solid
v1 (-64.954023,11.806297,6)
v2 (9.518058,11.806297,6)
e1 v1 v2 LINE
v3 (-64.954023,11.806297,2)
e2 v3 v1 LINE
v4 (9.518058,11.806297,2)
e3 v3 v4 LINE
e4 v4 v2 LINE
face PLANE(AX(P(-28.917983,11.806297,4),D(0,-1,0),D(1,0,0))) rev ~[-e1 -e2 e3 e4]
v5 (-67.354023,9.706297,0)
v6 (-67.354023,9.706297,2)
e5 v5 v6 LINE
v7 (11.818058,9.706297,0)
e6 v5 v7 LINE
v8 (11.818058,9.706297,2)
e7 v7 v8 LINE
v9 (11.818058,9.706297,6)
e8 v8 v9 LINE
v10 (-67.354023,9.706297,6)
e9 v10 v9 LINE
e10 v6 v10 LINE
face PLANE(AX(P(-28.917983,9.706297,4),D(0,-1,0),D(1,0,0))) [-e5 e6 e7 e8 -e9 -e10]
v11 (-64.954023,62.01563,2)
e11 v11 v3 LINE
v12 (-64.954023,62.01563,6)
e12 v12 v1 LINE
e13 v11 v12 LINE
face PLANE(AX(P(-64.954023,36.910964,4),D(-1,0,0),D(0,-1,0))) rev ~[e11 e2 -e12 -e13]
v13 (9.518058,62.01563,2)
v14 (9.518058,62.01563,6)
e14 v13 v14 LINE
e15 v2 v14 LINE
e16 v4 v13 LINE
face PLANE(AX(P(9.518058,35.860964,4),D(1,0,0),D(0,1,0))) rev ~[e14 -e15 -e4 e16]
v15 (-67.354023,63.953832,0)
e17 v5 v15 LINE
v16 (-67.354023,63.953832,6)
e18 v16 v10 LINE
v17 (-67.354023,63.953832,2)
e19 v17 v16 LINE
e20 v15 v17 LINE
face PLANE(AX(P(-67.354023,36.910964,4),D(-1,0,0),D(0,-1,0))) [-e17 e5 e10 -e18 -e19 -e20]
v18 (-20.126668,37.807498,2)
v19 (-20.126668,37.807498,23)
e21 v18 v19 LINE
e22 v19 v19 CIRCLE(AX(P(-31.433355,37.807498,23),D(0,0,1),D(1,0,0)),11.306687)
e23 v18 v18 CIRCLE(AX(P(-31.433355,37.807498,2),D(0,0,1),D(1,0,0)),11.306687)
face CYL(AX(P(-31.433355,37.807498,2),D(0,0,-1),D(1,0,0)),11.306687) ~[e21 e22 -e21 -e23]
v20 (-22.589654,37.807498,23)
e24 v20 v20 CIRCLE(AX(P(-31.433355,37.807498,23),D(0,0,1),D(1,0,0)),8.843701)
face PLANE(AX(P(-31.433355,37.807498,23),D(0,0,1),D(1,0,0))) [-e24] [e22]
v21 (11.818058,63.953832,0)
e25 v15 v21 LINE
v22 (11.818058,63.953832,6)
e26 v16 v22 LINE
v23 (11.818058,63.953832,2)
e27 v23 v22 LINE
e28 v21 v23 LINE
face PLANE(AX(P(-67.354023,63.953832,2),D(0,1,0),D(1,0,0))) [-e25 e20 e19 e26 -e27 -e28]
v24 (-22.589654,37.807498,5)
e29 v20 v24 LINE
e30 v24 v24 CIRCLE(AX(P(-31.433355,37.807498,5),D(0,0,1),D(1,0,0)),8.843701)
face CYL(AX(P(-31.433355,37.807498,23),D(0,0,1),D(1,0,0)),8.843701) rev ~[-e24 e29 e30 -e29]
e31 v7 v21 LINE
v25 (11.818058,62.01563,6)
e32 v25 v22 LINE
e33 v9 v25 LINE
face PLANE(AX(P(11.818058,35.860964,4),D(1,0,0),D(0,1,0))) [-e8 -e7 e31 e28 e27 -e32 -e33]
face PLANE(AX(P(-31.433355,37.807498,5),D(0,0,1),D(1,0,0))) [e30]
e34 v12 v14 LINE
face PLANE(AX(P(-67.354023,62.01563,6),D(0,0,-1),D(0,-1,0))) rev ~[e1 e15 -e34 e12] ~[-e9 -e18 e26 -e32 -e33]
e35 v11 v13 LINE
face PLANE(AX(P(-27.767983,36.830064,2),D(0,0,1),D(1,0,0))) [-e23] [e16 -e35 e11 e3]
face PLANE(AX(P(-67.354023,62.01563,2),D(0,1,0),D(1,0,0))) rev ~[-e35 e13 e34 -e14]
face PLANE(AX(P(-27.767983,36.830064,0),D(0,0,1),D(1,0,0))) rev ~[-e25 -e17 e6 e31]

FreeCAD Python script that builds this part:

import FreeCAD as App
import Part
import Sketcher
Q = App.Units.Quantity


def add_polygon(sketch, points):
    """Adds a closed chain of lines whose ends are joined by coincident constraints."""
    first, n = sketch.GeometryCount, len(points)
    for a, b in zip(points, points[1:] + points[:1]):
        sketch.addGeometry(Part.LineSegment(App.Vector(*a, 0), App.Vector(*b, 0)), False)
    for i in range(n):
        sketch.addConstraint(Sketcher.Constraint("Coincident", first + i, 2, first + (i + 1) % n, 1))

doc = App.newDocument("Part")
body = doc.addObject("PartDesign::Body", "Body")

sketch1 = doc.addObject("Sketcher::SketchObject", "Sketch")
body.addObject(sketch1)
sketch1.AttachmentSupport = (doc.XY_Plane, [""])
sketch1.MapMode = "FlatFace"
add_polygon(sketch1, [(-67, 64), (-67, 10), (12, 10), (12, 64)])
sketch1.addConstraint([
    Sketcher.Constraint("Vertical", 0),
    Sketcher.Constraint("Horizontal", 1),
    Sketcher.Constraint("Vertical", 2),
    Sketcher.Constraint("Horizontal", 3),
    Sketcher.Constraint("DistanceX", 1, 1, 1, 2, Q("79.172081 mm")),
    Sketcher.Constraint("DistanceY", 0, 2, 0, 1, Q("54.247535 mm")),
    Sketcher.Constraint("DistanceY", -1, 1, 2, 2, Q("63.953832 mm")),
    Sketcher.Constraint("DistanceX", 0, 2, -1, 1, Q("67.354023 mm")),
])
pad1 = doc.addObject("PartDesign::Pad", "Pad")
body.addObject(pad1)
pad1.Profile = sketch1
pad1.Length = 2

sketch2 = doc.addObject("Sketcher::SketchObject", "Sketch001")
body.addObject(sketch2)
sketch2.AttachmentSupport = (doc.XY_Plane, [""])
sketch2.MapMode = "FlatFace"
sketch2.AttachmentOffset = App.Placement(App.Vector(0, 0, 2), App.Rotation())
add_polygon(sketch2, [(-67.4, 64), (-67.4, 62), (11.8, 62), (11.8, 64)])
sketch2.addConstraint([
    Sketcher.Constraint("Vertical", 0),
    Sketcher.Constraint("Horizontal", 1),
    Sketcher.Constraint("Vertical", 2),
    Sketcher.Constraint("Horizontal", 3),
    Sketcher.Constraint("DistanceY", 0, 2, 0, 1, Q("1.938201 mm")),
    Sketcher.Constraint("DistanceX", 1, 1, 1, 2, Q("79.172081 mm")),
    Sketcher.Constraint("DistanceY", -1, 1, 0, 2, Q("62.01563 mm")),
    Sketcher.Constraint("DistanceX", 0, 2, -1, 1, Q("67.354023 mm")),
])
pad2 = doc.addObject("PartDesign::Pad", "Pad001")
body.addObject(pad2)
pad2.Profile = sketch2
pad2.Length = 4

sketch3 = doc.addObject("Sketcher::SketchObject", "Sketch002")
body.addObject(sketch3)
sketch3.AttachmentSupport = (doc.YZ_Plane, [""])
sketch3.MapMode = "FlatFace"
sketch3.AttachmentOffset = App.Placement(App.Vector(0, 0, 11.818058), App.Rotation())
add_polygon(sketch3, [(9.7, 6), (9.7, 2), (62, 2), (62, 6)])
sketch3.addConstraint([
    Sketcher.Constraint("Vertical", 0),
    Sketcher.Constraint("Horizontal", 1),
    Sketcher.Constraint("Vertical", 2),
    Sketcher.Constraint("Horizontal", 3),
    Sketcher.Constraint("DistanceY", 0, 2, 0, 1, Q("4 mm")),
    Sketcher.Constraint("DistanceY", -1, 1, 0, 2, Q("2 mm")),
    Sketcher.Constraint("DistanceX", 1, 1, 1, 2, Q("52.309333 mm")),
    Sketcher.Constraint("DistanceX", -1, 1, 1, 2, Q("62.01563 mm")),
])
pad3 = doc.addObject("PartDesign::Pad", "Pad002")
body.addObject(pad3)
pad3.Profile = sketch3
pad3.Length = 2.3
pad3.Reversed = True

sketch4 = doc.addObject("Sketcher::SketchObject", "Sketch003")
body.addObject(sketch4)
sketch4.AttachmentSupport = (doc.XZ_Plane, [""])
sketch4.MapMode = "FlatFace"
sketch4.AttachmentOffset = App.Placement(App.Vector(0, 0, -9.706297), App.Rotation())
add_polygon(sketch4, [(-67.4, 6), (-67.4, 2), (9.5, 2), (9.5, 6)])
sketch4.addConstraint([
    Sketcher.Constraint("Vertical", 0),
    Sketcher.Constraint("Horizontal", 1),
    Sketcher.Constraint("Vertical", 2),
    Sketcher.Constraint("Horizontal", 3),
    Sketcher.Constraint("DistanceY", 0, 2, 0, 1, Q("4 mm")),
    Sketcher.Constraint("DistanceY", -1, 1, 0, 2, Q("2 mm")),
    Sketcher.Constraint("DistanceX", 1, 1, 1, 2, Q("76.872081 mm")),
    Sketcher.Constraint("DistanceX", 0, 2, -1, 1, Q("67.354023 mm")),
])
pad4 = doc.addObject("PartDesign::Pad", "Pad003")
body.addObject(pad4)
pad4.Profile = sketch4
pad4.Length = 2.1
pad4.Reversed = True

sketch5 = doc.addObject("Sketcher::SketchObject", "Sketch004")
body.addObject(sketch5)
sketch5.AttachmentSupport = (doc.YZ_Plane, [""])
sketch5.MapMode = "FlatFace"
sketch5.AttachmentOffset = App.Placement(App.Vector(0, 0, -67.354023), App.Rotation())
add_polygon(sketch5, [(62, 6), (62, 2), (11.8, 2), (11.8, 6)])
sketch5.addConstraint([
    Sketcher.Constraint("Vertical", 0),
    Sketcher.Constraint("Horizontal", 1),
    Sketcher.Constraint("Vertical", 2),
    Sketcher.Constraint("Horizontal", 3),
    Sketcher.Constraint("DistanceY", 0, 2, 0, 1, Q("4 mm")),
    Sketcher.Constraint("DistanceY", -1, 1, 0, 2, Q("2 mm")),
    Sketcher.Constraint("DistanceX", 1, 2, 1, 1, Q("50.209333 mm")),
    Sketcher.Constraint("DistanceX", -1, 1, 0, 2, Q("62.01563 mm")),
])
pad5 = doc.addObject("PartDesign::Pad", "Pad004")
body.addObject(pad5)
pad5.Profile = sketch5
pad5.Length = 2.4

sketch6 = doc.addObject("Sketcher::SketchObject", "Sketch005")
body.addObject(sketch6)
sketch6.AttachmentSupport = (doc.XY_Plane, [""])
sketch6.MapMode = "FlatFace"
sketch6.AttachmentOffset = App.Placement(App.Vector(0, 0, 2), App.Rotation())
sketch6.addGeometry(Part.Circle(App.Vector(-31, 38, 0), App.Vector(0, 0, 1), 11), False)
sketch6.addConstraint([
    Sketcher.Constraint("Diameter", 0, Q("22.613374 mm")),
    Sketcher.Constraint("DistanceY", -1, 1, 0, 3, Q("37.807498 mm")),
    Sketcher.Constraint("DistanceX", 0, 3, -1, 1, Q("31.433355 mm")),
])
pad6 = doc.addObject("PartDesign::Pad", "Pad005")
body.addObject(pad6)
pad6.Profile = sketch6
pad6.Length = 21

sketch7 = doc.addObject("Sketcher::SketchObject", "Sketch006")
body.addObject(sketch7)
sketch7.AttachmentSupport = (doc.XY_Plane, [""])
sketch7.MapMode = "FlatFace"
sketch7.AttachmentOffset = App.Placement(App.Vector(0, 0, 23), App.Rotation())
sketch7.addGeometry(Part.Circle(App.Vector(-31, 38, 0), App.Vector(0, 0, 1), 10), False)
sketch7.addConstraint([
    Sketcher.Constraint("Diameter", 0, Q("19.603565 mm")),
    Sketcher.Constraint("DistanceY", -1, 1, 0, 3, Q("37.807498 mm")),
    Sketcher.Constraint("DistanceX", 0, 3, -1, 1, Q("31.433355 mm")),
])
pad7 = doc.addObject("PartDesign::Pad", "Pad006")
body.addObject(pad7)
pad7.Profile = sketch7
pad7.Length = 11
pad7.Reversed = True

sketch8 = doc.addObject("Sketcher::SketchObject", "Sketch007")
body.addObject(sketch8)
sketch8.AttachmentSupport = (doc.XY_Plane, [""])
sketch8.MapMode = "FlatFace"
sketch8.AttachmentOffset = App.Placement(App.Vector(0, 0, 23), App.Rotation())
sketch8.addGeometry(Part.Circle(App.Vector(-31, 38, 0), App.Vector(0, 0, 1), 9), False)
sketch8.addConstraint([
    Sketcher.Constraint("Diameter", 0, Q("17.687401 mm")),
    Sketcher.Constraint("DistanceY", -1, 1, 0, 3, Q("37.807498 mm")),
    Sketcher.Constraint("DistanceX", 0, 3, -1, 1, Q("31.433355 mm")),
])
pocket1 = doc.addObject("PartDesign::Pocket", "Pocket")
body.addObject(pocket1)
pocket1.Profile = sketch8
pocket1.Length = 18

doc.recompute()
